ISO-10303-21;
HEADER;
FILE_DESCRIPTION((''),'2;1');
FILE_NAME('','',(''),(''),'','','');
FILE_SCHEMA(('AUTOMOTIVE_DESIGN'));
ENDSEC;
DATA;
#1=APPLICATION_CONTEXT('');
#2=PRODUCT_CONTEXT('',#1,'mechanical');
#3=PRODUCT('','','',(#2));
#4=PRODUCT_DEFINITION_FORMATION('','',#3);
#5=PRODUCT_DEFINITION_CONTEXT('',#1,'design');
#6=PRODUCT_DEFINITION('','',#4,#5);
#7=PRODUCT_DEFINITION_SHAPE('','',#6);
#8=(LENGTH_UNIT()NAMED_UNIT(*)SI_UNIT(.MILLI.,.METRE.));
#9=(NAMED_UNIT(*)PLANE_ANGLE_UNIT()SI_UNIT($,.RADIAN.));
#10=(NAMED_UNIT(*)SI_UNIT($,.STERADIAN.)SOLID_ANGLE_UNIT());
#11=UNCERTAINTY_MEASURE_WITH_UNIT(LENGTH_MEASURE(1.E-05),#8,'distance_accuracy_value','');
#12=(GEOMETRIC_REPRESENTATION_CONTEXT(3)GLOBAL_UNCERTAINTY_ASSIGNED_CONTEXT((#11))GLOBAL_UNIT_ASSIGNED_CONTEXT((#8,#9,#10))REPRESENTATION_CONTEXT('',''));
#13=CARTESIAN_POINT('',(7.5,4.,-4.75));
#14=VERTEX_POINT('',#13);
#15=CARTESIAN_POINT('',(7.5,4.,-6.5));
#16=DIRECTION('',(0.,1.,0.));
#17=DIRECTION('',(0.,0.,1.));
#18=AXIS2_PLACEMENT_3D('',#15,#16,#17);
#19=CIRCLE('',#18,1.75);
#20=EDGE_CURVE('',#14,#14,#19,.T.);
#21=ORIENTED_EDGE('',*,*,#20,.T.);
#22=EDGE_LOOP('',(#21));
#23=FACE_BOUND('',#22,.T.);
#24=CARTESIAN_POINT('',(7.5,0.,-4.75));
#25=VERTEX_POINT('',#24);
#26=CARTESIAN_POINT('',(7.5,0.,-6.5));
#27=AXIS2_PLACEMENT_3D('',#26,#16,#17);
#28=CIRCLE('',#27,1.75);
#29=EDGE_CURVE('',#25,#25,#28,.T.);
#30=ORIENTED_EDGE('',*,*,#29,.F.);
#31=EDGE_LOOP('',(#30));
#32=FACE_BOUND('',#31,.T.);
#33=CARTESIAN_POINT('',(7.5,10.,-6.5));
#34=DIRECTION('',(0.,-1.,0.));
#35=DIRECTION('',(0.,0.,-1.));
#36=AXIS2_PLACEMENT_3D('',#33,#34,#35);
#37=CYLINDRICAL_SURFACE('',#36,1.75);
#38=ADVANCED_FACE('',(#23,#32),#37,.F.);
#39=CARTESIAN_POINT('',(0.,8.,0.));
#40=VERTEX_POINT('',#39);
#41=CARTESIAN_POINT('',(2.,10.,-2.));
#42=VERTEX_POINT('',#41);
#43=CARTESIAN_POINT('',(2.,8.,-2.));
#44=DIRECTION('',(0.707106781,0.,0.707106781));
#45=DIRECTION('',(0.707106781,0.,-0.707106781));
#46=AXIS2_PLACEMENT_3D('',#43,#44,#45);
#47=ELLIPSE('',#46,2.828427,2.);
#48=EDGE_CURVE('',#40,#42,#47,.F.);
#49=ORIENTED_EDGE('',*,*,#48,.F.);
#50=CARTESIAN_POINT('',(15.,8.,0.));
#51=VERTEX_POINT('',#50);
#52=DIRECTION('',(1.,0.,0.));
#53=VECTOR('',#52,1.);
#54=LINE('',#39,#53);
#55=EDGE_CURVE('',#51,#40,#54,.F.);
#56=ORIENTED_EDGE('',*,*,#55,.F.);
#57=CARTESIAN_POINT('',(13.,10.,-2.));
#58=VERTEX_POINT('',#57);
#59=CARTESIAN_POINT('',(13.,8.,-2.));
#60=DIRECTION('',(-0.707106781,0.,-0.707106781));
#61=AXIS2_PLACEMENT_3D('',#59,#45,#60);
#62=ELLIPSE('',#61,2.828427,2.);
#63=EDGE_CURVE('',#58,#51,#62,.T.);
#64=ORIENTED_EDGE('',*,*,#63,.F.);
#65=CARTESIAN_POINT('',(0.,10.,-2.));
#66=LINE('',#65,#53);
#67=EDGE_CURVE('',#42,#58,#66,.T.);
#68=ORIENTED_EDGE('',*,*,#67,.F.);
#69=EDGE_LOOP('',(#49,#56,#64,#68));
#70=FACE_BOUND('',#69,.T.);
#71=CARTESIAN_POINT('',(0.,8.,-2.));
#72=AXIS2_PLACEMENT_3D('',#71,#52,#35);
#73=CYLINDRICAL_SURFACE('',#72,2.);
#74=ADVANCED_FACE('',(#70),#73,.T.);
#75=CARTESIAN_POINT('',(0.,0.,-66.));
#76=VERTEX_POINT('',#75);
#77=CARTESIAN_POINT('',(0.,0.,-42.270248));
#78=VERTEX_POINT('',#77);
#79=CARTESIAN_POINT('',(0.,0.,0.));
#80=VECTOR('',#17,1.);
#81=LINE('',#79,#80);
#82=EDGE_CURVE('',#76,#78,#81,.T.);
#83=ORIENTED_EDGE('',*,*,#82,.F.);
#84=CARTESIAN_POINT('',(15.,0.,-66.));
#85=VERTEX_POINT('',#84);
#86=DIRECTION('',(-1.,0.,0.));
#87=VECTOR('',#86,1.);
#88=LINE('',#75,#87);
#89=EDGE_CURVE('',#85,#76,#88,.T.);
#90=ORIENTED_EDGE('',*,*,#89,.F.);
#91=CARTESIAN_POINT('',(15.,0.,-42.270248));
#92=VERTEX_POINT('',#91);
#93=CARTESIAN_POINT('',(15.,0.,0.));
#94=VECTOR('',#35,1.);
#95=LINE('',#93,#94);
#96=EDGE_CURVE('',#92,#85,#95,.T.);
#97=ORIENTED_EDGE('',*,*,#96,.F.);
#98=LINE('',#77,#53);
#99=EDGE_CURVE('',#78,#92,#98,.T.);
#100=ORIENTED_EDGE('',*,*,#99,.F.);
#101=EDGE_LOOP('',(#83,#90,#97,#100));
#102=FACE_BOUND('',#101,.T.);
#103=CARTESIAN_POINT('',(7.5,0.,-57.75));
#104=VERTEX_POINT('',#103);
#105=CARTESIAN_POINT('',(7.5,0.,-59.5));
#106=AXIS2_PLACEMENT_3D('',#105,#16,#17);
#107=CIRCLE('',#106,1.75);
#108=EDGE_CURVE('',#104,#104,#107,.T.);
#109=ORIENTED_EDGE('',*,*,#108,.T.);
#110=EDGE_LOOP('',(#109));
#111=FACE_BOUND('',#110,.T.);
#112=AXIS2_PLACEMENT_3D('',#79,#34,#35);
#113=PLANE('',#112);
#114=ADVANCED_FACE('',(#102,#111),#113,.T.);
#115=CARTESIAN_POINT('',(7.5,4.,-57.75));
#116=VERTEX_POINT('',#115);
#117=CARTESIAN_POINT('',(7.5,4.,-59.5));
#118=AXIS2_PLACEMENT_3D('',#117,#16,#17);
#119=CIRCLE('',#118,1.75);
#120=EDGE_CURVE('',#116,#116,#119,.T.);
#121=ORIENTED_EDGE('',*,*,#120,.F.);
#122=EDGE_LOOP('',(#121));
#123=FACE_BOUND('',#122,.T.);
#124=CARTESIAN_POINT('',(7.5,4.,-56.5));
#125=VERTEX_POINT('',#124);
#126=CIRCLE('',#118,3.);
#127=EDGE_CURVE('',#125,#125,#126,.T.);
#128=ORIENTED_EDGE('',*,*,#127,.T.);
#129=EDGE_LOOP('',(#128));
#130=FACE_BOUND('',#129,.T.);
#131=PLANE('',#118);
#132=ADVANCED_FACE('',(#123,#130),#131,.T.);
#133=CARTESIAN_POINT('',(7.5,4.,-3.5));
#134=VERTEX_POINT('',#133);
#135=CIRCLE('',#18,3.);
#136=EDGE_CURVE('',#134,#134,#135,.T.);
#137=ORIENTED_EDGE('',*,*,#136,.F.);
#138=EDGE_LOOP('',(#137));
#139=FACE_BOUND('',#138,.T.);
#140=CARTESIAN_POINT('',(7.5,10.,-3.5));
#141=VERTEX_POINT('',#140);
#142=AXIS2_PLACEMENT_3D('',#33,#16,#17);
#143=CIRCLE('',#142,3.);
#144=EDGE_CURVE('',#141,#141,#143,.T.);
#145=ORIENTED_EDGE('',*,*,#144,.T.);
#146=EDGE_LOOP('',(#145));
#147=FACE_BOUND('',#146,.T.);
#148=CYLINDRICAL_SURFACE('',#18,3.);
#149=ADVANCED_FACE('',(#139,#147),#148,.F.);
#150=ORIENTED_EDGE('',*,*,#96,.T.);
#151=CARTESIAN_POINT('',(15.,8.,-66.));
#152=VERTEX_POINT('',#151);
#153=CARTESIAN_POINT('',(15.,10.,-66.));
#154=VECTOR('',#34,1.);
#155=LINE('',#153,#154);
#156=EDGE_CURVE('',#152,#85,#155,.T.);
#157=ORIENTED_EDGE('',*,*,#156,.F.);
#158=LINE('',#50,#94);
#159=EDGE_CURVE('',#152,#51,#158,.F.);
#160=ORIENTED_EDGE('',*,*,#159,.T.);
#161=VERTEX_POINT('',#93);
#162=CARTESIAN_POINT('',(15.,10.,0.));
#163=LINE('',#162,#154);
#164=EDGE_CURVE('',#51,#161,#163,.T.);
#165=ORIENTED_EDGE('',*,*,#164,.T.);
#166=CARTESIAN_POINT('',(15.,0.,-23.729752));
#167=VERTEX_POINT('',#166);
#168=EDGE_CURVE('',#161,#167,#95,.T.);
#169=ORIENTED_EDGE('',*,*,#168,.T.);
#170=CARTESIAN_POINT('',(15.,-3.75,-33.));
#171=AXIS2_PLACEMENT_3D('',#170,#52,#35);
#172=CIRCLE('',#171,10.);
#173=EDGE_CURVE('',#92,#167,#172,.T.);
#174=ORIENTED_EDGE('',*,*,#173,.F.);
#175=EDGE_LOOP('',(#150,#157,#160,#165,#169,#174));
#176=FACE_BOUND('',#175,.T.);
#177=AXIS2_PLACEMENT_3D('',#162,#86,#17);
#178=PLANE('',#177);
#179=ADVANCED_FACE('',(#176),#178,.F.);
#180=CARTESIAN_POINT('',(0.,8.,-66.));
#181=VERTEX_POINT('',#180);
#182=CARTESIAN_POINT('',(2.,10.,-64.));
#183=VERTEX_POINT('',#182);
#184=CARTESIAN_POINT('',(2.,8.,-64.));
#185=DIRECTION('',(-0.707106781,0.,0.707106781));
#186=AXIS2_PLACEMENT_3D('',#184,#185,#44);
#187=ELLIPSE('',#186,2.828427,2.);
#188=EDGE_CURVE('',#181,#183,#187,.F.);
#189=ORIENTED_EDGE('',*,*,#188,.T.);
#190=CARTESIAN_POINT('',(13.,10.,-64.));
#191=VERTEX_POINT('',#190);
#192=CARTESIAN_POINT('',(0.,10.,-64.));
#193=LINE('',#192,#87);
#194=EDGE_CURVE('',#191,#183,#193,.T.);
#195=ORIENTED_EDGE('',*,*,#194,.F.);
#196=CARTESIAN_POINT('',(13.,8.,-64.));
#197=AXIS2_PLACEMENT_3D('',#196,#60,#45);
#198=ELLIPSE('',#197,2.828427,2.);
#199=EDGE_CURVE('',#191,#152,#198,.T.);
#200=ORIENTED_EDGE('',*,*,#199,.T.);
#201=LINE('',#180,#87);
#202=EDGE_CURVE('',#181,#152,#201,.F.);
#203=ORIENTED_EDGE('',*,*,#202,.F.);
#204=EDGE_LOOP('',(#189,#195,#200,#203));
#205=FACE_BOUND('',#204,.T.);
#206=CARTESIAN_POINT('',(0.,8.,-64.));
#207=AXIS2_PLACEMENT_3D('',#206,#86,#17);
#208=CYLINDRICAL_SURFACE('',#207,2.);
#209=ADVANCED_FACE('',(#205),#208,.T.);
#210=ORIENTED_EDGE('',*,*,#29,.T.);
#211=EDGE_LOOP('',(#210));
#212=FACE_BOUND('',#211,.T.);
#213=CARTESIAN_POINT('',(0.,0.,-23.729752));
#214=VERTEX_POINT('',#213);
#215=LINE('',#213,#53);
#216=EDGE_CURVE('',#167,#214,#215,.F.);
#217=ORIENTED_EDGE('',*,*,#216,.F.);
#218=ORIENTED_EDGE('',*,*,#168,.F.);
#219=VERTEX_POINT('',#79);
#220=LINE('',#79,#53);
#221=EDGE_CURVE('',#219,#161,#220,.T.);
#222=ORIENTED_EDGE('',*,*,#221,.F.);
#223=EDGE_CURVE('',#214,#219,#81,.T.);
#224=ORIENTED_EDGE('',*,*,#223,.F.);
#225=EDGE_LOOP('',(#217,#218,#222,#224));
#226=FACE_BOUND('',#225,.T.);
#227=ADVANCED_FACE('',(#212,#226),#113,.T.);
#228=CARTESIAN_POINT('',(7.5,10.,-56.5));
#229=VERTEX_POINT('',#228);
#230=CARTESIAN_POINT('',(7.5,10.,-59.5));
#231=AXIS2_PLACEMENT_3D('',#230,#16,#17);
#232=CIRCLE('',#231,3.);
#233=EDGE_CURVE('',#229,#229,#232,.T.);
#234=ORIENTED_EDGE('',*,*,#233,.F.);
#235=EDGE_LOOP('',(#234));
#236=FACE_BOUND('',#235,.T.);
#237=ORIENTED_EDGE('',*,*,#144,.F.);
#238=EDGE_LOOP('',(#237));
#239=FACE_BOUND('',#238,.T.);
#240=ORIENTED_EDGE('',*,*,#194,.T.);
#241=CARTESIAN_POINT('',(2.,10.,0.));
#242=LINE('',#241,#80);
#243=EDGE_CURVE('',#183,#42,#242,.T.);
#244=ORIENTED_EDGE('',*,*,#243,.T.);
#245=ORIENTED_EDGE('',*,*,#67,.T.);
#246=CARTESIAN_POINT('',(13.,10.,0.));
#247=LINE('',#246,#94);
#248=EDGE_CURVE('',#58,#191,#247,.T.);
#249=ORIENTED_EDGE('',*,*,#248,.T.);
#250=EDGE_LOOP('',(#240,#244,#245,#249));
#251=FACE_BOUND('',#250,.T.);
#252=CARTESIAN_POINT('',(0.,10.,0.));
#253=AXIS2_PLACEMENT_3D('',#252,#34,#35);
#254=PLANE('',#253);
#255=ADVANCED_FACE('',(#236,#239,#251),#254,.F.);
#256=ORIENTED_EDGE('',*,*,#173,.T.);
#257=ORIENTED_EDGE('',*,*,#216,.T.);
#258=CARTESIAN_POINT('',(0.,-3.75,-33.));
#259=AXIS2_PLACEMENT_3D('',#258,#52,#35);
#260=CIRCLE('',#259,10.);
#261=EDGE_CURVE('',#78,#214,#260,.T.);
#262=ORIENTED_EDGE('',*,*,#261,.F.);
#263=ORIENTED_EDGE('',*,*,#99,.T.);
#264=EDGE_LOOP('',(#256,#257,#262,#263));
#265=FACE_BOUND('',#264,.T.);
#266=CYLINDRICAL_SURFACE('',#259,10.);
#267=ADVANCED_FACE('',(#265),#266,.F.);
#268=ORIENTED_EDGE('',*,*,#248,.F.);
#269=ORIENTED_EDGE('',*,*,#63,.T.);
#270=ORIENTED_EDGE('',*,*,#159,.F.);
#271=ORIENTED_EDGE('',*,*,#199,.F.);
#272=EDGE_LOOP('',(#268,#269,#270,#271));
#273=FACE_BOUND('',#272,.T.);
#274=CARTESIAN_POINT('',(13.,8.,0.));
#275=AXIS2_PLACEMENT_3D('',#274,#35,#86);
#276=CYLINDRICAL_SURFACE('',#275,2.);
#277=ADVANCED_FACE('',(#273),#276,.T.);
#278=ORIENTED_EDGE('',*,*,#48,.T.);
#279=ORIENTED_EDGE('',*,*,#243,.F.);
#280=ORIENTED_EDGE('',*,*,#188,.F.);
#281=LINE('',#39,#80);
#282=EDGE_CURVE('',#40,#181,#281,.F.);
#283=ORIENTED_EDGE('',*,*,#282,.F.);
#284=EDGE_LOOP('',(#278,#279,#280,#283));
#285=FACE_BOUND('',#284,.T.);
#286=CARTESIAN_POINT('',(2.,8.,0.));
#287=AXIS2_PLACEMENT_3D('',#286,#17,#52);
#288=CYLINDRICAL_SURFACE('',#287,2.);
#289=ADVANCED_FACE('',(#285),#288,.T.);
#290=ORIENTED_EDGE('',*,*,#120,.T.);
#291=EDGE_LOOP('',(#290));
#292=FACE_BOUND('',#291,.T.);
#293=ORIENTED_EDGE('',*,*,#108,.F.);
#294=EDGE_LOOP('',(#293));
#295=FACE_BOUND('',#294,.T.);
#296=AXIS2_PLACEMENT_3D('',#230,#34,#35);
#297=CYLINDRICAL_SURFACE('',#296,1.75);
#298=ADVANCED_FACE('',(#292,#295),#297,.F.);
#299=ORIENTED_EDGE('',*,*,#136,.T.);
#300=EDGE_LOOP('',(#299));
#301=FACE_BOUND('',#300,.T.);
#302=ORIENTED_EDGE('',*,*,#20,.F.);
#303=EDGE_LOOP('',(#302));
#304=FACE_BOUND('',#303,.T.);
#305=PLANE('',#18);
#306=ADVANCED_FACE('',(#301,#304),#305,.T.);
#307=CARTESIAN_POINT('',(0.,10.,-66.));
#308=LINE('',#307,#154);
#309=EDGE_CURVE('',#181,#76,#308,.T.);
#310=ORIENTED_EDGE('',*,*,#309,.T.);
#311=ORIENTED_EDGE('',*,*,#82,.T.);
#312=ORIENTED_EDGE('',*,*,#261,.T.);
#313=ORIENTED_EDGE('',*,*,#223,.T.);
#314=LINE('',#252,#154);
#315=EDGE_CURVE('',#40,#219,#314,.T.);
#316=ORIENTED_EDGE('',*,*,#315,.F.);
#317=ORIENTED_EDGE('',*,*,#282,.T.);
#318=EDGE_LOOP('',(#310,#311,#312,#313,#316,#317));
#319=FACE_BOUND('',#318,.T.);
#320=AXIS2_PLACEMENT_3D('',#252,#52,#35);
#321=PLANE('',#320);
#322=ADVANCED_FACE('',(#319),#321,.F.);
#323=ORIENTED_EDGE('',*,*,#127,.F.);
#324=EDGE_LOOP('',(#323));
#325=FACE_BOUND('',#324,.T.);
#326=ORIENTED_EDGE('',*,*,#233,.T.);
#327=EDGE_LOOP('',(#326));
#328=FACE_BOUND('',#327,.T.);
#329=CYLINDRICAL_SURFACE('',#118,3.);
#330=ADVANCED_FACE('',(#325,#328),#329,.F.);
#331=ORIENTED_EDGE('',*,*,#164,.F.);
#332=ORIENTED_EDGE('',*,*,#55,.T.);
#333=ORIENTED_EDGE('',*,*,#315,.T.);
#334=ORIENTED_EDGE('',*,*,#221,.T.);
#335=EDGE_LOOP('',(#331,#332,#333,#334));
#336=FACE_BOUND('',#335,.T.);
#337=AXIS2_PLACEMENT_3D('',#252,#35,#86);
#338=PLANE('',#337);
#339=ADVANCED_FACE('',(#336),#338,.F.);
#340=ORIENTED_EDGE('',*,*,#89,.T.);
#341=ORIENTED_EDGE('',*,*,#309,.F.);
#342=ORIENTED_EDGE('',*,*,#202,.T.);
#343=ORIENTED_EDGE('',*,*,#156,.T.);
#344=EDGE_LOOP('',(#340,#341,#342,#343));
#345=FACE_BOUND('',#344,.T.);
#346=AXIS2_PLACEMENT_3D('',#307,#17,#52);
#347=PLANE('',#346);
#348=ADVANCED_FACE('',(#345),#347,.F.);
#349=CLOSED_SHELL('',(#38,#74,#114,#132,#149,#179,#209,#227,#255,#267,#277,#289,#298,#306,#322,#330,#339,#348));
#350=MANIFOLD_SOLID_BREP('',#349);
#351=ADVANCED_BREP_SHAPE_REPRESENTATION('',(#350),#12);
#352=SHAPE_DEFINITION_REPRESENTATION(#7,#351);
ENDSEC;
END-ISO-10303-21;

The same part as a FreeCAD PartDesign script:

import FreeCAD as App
import Part
import Sketcher
from FreeCAD import Vector
Q = App.Units.Quantity


def edges_at(feature, points):
    """Names of the edges that pass closest to the given points."""
    edges = feature.Shape.Edges
    near = lambda p: min(range(len(edges)), key=lambda i: edges[i].distToShape(Part.Vertex(*p))[0])
    return sorted({f"Edge{near(p) + 1}" for p in points})


def add_polygon(sketch, points):
    """Adds a closed chain of lines whose ends are joined by coincident constraints."""
    first, n = sketch.GeometryCount, len(points)
    for a, b in zip(points, points[1:] + points[:1]):
        sketch.addGeometry(Part.LineSegment(App.Vector(*a, 0), App.Vector(*b, 0)), False)
    for i in range(n):
        sketch.addConstraint(Sketcher.Constraint("Coincident", first + i, 2, first + (i + 1) % n, 1))

doc = App.newDocument("Part")
body = doc.addObject("PartDesign::Body", "Body")

sketch1 = doc.addObject("Sketcher::SketchObject", "Sketch")
body.addObject(sketch1)
sketch1.AttachmentSupport = (doc.XZ_Plane, [""])
sketch1.MapMode = "FlatFace"
add_polygon(sketch1, [(0, -66), (0, 0), (15, 0), (15, -66)])
sketch1.addGeometry(Part.Circle(Vector(7.5, -6.5, 0), Vector(0, 0, 1), 1.75), False)
sketch1.addGeometry(Part.Circle(Vector(7.5, -59.5, 0), Vector(0, 0, 1), 1.75), False)
sketch1.addConstraint(Sketcher.Constraint("Vertical", 0))
sketch1.addConstraint(Sketcher.Constraint("Horizontal", 1))
sketch1.addConstraint(Sketcher.Constraint("Vertical", 2))
sketch1.addConstraint(Sketcher.Constraint("Horizontal", 3))
sketch1.addConstraint(Sketcher.Constraint("Coincident", 0, 2, -1, 1))
sketch1.addConstraint(Sketcher.Constraint("Equal", 4, 5))
sketch1.addConstraint(Sketcher.Constraint("Vertical", 4, 3, 5, 3))
sketch1.addConstraint(Sketcher.Constraint("Diameter", 4, Q("3.5 mm")))
sketch1.addConstraint(Sketcher.Constraint("DistanceX", 1, 1, 1, 2, Q("15 mm")))
sketch1.addConstraint(Sketcher.Constraint("DistanceY", 0, 1, 0, 2, Q("66 mm")))
sketch1.addConstraint(Sketcher.Constraint("DistanceY", 5, 3, 4, 3, Q("53 mm")))
sketch1.addConstraint(Sketcher.Constraint("DistanceX", -1, 1, 4, 3, Q("7.5 mm")))
sketch1.addConstraint(Sketcher.Constraint("DistanceY", 4, 3, -1, 1, Q("6.5 mm")))
pad1 = doc.addObject("PartDesign::Pad", "Pad")
body.addObject(pad1)
pad1.Profile = sketch1
pad1.Length = 10
pad1.Reversed = True

sketch2 = doc.addObject("Sketcher::SketchObject", "Sketch001")
body.addObject(sketch2)
sketch2.AttachmentSupport = (doc.XZ_Plane, [""])
sketch2.MapMode = "FlatFace"
sketch2.AttachmentOffset = App.Placement(Vector(0, 0, -10), App.Rotation())
sketch2.addGeometry(Part.Circle(Vector(7.5, -59.5, 0), Vector(0, 0, 1), 3), False)
sketch2.addGeometry(Part.Circle(Vector(7.5, -6.5, 0), Vector(0, 0, 1), 3), False)
sketch2.addConstraint(Sketcher.Constraint("Equal", 0, 1))
sketch2.addConstraint(Sketcher.Constraint("Vertical", 0, 3, 1, 3))
sketch2.addConstraint(Sketcher.Constraint("Diameter", 0, Q("6 mm")))
sketch2.addConstraint(Sketcher.Constraint("DistanceY", 0, 3, 1, 3, Q("53 mm")))
sketch2.addConstraint(Sketcher.Constraint("DistanceX", -1, 1, 0, 3, Q("7.5 mm")))
sketch2.addConstraint(Sketcher.Constraint("DistanceY", 0, 3, -1, 1, Q("59.5 mm")))
pocket1 = doc.addObject("PartDesign::Pocket", "Pocket")
body.addObject(pocket1)
pocket1.Profile = sketch2
pocket1.Length = 6
pocket1.Reversed = True
doc.recompute()

fillet = doc.addObject("PartDesign::Fillet", "Fillet")
body.addObject(fillet)
fillet.Base = (pocket1, edges_at(pocket1, [
    (15, 10, -33),
    (7.5, 10, -66),
    (0, 10, -33),
    (7.5, 10, 0),
]))
fillet.Radius = 2

sketch3 = doc.addObject("Sketcher::SketchObject", "Sketch002")
body.addObject(sketch3)
sketch3.AttachmentSupport = (doc.YZ_Plane, [""])
sketch3.MapMode = "FlatFace"
sketch3.AttachmentOffset = App.Placement(Vector(0, 0, 15), App.Rotation())
sketch3.addGeometry(Part.Circle(Vector(-3.75, -33, 0), Vector(0, 0, 1), 10), False)
sketch3.addConstraint(Sketcher.Constraint("Diameter", 0, Q("20 mm")))
sketch3.addConstraint(Sketcher.Constraint("DistanceY", 0, 3, -1, 1, Q("33 mm")))
sketch3.addConstraint(Sketcher.Constraint("DistanceX", 0, 3, -1, 1, Q("3.75 mm")))
pocket2 = doc.addObject("PartDesign::Pocket", "Pocket001")
body.addObject(pocket2)
pocket2.Profile = sketch3
pocket2.Length = 15

doc.recompute()
